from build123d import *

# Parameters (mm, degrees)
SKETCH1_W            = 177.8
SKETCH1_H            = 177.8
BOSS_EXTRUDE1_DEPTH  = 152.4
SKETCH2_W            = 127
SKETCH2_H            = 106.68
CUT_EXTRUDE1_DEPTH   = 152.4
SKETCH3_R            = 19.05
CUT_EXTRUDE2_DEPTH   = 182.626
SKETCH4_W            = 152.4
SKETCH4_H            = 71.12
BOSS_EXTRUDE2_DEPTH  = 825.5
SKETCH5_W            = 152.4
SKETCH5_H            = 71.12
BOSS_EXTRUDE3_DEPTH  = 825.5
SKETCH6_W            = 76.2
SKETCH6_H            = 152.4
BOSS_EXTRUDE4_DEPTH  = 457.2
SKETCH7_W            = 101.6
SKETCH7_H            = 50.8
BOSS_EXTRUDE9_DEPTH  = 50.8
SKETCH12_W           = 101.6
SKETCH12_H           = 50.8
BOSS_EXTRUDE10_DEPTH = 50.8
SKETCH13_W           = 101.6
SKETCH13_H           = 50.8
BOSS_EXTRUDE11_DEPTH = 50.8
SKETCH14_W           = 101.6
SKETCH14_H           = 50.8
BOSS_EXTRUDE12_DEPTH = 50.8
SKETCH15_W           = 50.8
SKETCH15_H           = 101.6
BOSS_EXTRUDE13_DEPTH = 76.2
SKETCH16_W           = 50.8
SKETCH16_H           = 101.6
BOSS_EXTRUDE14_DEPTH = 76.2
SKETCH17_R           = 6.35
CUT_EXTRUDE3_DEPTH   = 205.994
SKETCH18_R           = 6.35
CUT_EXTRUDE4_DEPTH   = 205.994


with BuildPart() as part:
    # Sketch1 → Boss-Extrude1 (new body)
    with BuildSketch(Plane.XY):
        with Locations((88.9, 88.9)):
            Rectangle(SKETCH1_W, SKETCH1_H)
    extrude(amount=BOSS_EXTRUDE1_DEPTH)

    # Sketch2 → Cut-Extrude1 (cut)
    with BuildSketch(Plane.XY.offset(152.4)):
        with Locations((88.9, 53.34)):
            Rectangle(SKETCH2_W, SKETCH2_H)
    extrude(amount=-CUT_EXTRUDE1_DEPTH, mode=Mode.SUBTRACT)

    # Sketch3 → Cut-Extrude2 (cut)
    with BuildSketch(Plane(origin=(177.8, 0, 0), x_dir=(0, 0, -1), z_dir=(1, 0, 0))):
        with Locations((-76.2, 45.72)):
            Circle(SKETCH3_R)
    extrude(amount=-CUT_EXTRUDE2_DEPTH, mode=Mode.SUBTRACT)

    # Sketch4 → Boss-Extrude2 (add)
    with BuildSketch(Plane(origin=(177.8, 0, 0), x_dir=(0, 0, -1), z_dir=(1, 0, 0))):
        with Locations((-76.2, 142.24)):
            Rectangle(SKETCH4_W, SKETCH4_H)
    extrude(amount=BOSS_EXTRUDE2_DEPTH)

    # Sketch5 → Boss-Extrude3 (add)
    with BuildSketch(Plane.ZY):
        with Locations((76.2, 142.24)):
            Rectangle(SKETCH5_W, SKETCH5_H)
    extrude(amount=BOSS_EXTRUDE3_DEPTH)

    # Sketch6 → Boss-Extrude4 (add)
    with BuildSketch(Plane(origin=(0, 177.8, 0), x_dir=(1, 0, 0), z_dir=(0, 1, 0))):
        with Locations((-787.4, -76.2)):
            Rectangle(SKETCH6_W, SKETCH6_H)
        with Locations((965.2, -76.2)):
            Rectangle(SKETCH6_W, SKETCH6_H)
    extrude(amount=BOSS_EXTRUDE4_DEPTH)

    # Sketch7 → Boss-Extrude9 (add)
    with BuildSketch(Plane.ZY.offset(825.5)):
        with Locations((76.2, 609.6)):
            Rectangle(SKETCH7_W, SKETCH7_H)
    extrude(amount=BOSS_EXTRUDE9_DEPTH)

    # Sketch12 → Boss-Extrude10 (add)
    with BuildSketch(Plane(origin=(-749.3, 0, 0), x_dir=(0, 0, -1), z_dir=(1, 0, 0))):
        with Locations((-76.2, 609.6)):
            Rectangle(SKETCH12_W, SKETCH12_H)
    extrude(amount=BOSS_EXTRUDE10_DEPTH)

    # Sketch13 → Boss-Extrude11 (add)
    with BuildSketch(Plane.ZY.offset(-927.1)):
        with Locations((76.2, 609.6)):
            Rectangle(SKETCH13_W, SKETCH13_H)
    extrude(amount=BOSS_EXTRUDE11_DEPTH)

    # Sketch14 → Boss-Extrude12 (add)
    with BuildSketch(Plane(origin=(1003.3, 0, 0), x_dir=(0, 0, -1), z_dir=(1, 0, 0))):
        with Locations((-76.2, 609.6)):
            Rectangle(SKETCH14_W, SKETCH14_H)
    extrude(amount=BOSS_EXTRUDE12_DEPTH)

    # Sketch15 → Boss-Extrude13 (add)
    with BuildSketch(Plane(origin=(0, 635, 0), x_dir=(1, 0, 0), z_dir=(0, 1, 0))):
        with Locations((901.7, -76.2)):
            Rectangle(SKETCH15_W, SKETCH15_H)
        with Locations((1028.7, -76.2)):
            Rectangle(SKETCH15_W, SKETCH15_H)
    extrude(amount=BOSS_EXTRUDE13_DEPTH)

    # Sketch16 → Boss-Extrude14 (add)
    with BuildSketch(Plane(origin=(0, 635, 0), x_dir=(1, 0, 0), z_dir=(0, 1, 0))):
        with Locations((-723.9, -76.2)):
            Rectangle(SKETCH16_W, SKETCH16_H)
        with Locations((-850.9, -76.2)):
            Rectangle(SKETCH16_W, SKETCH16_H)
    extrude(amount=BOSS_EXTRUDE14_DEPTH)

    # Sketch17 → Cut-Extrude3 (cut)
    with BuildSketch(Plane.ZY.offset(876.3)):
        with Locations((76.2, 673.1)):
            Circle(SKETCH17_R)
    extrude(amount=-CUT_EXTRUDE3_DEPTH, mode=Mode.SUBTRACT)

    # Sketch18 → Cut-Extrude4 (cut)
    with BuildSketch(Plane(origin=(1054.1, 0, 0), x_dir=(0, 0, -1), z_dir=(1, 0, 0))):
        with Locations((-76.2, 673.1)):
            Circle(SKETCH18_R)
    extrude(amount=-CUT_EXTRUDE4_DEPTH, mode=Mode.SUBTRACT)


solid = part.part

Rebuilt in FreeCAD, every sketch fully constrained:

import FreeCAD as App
import Part
import Sketcher

V = App.Vector
Q = App.Units.Quantity

doc = App.newDocument("Part")
body = doc.addObject("PartDesign::Body", "Body")

# Sketch on XY plane
sketch1 = body.newObject("Sketcher::SketchObject", "Sketch")
sketch1.AttachmentSupport = (doc.getObject("XY_Plane"), [""])
sketch1.MapMode = "FlatFace"
sketch1.addGeometry([
    Part.LineSegment(V(0, 178, 0), V(0, 0, 0)),
    Part.LineSegment(V(0, 0, 0), V(178, 0, 0)),
    Part.LineSegment(V(178, 0, 0), V(178, 178, 0)),
    Part.LineSegment(V(178, 178, 0), V(0, 178, 0)),
], False)
sketch1.addConstraint([
    Sketcher.Constraint("Coincident", 0, 2, 1, 1),
    Sketcher.Constraint("Coincident", 1, 2, 2, 1),
    Sketcher.Constraint("Coincident", 2, 2, 3, 1),
    Sketcher.Constraint("Coincident", 3, 2, 0, 1),
    Sketcher.Constraint("Vertical", 0),
    Sketcher.Constraint("Horizontal", 1),
    Sketcher.Constraint("Vertical", 2),
    Sketcher.Constraint("Horizontal", 3),
    Sketcher.Constraint("Coincident", 0, 2, -1, 1),
    Sketcher.Constraint("Equal", 3, 0),
    Sketcher.Constraint("DistanceX", 1, 1, 1, 2, Q("7 in")),
])
pad1 = body.newObject("PartDesign::Pad", "Pad")
pad1.Profile = sketch1
pad1.Length = Q("6 in")

# Sketch on XY plane
sketch2 = body.newObject("Sketcher::SketchObject", "Sketch001")
sketch2.AttachmentSupport = (doc.getObject("XY_Plane"), [""])
sketch2.MapMode = "FlatFace"
sketch2.AttachmentOffset = App.Placement(V(0, 0, 6 * 25.4), App.Rotation())
sketch2.addGeometry([
    Part.LineSegment(V(25, 107, 0), V(25, 0, 0)),
    Part.LineSegment(V(25, 0, 0), V(152, 0, 0)),
    Part.LineSegment(V(152, 0, 0), V(152, 107, 0)),
    Part.LineSegment(V(152, 107, 0), V(25, 107, 0)),
], False)
sketch2.addConstraint([
    Sketcher.Constraint("Coincident", 0, 2, 1, 1),
    Sketcher.Constraint("Coincident", 1, 2, 2, 1),
    Sketcher.Constraint("Coincident", 2, 2, 3, 1),
    Sketcher.Constraint("Coincident", 3, 2, 0, 1),
    Sketcher.Constraint("Vertical", 0),
    Sketcher.Constraint("Horizontal", 1),
    Sketcher.Constraint("Vertical", 2),
    Sketcher.Constraint("Horizontal", 3),
    Sketcher.Constraint("PointOnObject", 0, 2, -1),
    Sketcher.Constraint("DistanceX", 1, 1, 1, 2, Q("5 in")),
    Sketcher.Constraint("DistanceY", 0, 2, 0, 1, Q("4.2 in")),
    Sketcher.Constraint("DistanceX", -1, 1, 0, 2, Q("1 in")),
])
pocket1 = body.newObject("PartDesign::Pocket", "Pocket")
pocket1.Profile = sketch2
pocket1.Length = Q("6 in")

# Sketch on YZ plane
sketch3 = body.newObject("Sketcher::SketchObject", "Sketch002")
sketch3.AttachmentSupport = (doc.getObject("YZ_Plane"), [""])
sketch3.MapMode = "FlatFace"
sketch3.AttachmentOffset = App.Placement(V(0, 0, 7 * 25.4), App.Rotation())
sketch3.addGeometry(Part.Circle(V(46, 76, 0), V(0, 0, 1), 19), False)
sketch3.addConstraint([
    Sketcher.Constraint("Diameter", 0, Q("1.5 in")),
    Sketcher.Constraint("DistanceY", -1, 1, 0, 3, Q("3 in")),
    Sketcher.Constraint("DistanceX", -1, 1, 0, 3, Q("1.8 in")),
])
pocket2 = body.newObject("PartDesign::Pocket", "Pocket001")
pocket2.Profile = sketch3
pocket2.Length = Q("7.19 in")

# Sketch on YZ plane
sketch4 = body.newObject("Sketcher::SketchObject", "Sketch003")
sketch4.AttachmentSupport = (doc.getObject("YZ_Plane"), [""])
sketch4.MapMode = "FlatFace"
sketch4.AttachmentOffset = App.Placement(V(0, 0, 7 * 25.4), App.Rotation())
sketch4.addGeometry([
    Part.LineSegment(V(178, 152, 0), V(107, 152, 0)),
    Part.LineSegment(V(107, 152, 0), V(107, 0, 0)),
    Part.LineSegment(V(107, 0, 0), V(178, 0, 0)),
    Part.LineSegment(V(178, 0, 0), V(178, 152, 0)),
], False)
sketch4.addConstraint([
    Sketcher.Constraint("Coincident", 0, 2, 1, 1),
    Sketcher.Constraint("Coincident", 1, 2, 2, 1),
    Sketcher.Constraint("Coincident", 2, 2, 3, 1),
    Sketcher.Constraint("Coincident", 3, 2, 0, 1),
    Sketcher.Constraint("Horizontal", 0),
    Sketcher.Constraint("Vertical", 1),
    Sketcher.Constraint("Horizontal", 2),
    Sketcher.Constraint("Vertical", 3),
    Sketcher.Constraint("PointOnObject", 1, 2, -1),
    Sketcher.Constraint("DistanceY", 1, 2, 1, 1, Q("6 in")),
    Sketcher.Constraint("DistanceX", 0, 2, 0, 1, Q("2.8 in")),
    Sketcher.Constraint("DistanceX", -1, 1, 2, 2, Q("7 in")),
])
pad2 = body.newObject("PartDesign::Pad", "Pad001")
pad2.Profile = sketch4
pad2.Length = Q("32.5 in")

# Sketch on YZ plane
sketch5 = body.newObject("Sketcher::SketchObject", "Sketch004")
sketch5.AttachmentSupport = (doc.getObject("YZ_Plane"), [""])
sketch5.MapMode = "FlatFace"
sketch5.addGeometry([
    Part.LineSegment(V(178, 0, 0), V(107, 0, 0)),
    Part.LineSegment(V(107, 0, 0), V(107, 152, 0)),
    Part.LineSegment(V(107, 152, 0), V(178, 152, 0)),
    Part.LineSegment(V(178, 152, 0), V(178, 0, 0)),
], False)
sketch5.addConstraint([
    Sketcher.Constraint("Coincident", 0, 2, 1, 1),
    Sketcher.Constraint("Coincident", 1, 2, 2, 1),
    Sketcher.Constraint("Coincident", 2, 2, 3, 1),
    Sketcher.Constraint("Coincident", 3, 2, 0, 1),
    Sketcher.Constraint("Horizontal", 0),
    Sketcher.Constraint("Vertical", 1),
    Sketcher.Constraint("Horizontal", 2),
    Sketcher.Constraint("Vertical", 3),
    Sketcher.Constraint("PointOnObject", 0, 2, -1),
    Sketcher.Constraint("DistanceY", 1, 1, 1, 2, Q("6 in")),
    Sketcher.Constraint("DistanceX", 0, 2, 0, 1, Q("2.8 in")),
    Sketcher.Constraint("DistanceX", -1, 1, 2, 2, Q("7 in")),
])
pad3 = body.newObject("PartDesign::Pad", "Pad002")
pad3.Profile = sketch5
pad3.Length = Q("32.5 in")
pad3.Reversed = True

# Sketch on XZ plane
sketch6 = body.newObject("Sketcher::SketchObject", "Sketch005")
sketch6.AttachmentSupport = (doc.getObject("XZ_Plane"), [""])
sketch6.MapMode = "FlatFace"
sketch6.AttachmentOffset = App.Placement(V(0, 0, -7 * 25.4), App.Rotation())
sketch6.addGeometry([
    Part.LineSegment(V(-826, 0, 0), V(-826, 152, 0)),  # 0
    Part.LineSegment(V(-826, 152, 0), V(-749, 152, 0)),  # 1
    Part.LineSegment(V(-749, 152, 0), V(-749, 0, 0)),  # 2
    Part.LineSegment(V(-749, 0, 0), V(-826, 0, 0)),  # 3
    Part.LineSegment(V(927, 0, 0), V(927, 152, 0)),  # 4
    Part.LineSegment(V(927, 152, 0), V(1003, 152, 0)),  # 5
    Part.LineSegment(V(1003, 152, 0), V(1003, 0, 0)),  # 6
    Part.LineSegment(V(1003, 0, 0), V(927, 0, 0)),  # 7
], False)
sketch6.addConstraint([
    Sketcher.Constraint("Coincident", 0, 2, 1, 1),
    Sketcher.Constraint("Coincident", 1, 2, 2, 1),
    Sketcher.Constraint("Coincident", 2, 2, 3, 1),
    Sketcher.Constraint("Coincident", 3, 2, 0, 1),
    Sketcher.Constraint("Coincident", 4, 2, 5, 1),
    Sketcher.Constraint("Coincident", 5, 2, 6, 1),
    Sketcher.Constraint("Coincident", 6, 2, 7, 1),
    Sketcher.Constraint("Coincident", 7, 2, 4, 1),
    Sketcher.Constraint("Vertical", 0),
    Sketcher.Constraint("Horizontal", 1),
    Sketcher.Constraint("Vertical", 2),
    Sketcher.Constraint("Horizontal", 3),
    Sketcher.Constraint("Vertical", 4),
    Sketcher.Constraint("Horizontal", 5),
    Sketcher.Constraint("Vertical", 6),
    Sketcher.Constraint("Horizontal", 7),
    Sketcher.Constraint("PointOnObject", 2, 2, -1),
    Sketcher.Constraint("PointOnObject", 6, 2, -1),
    Sketcher.Constraint("Horizontal", 1, 2, 4, 2),
    Sketcher.Constraint("Equal", 3, 5),
    Sketcher.Constraint("DistanceX", 1, 1, 1, 2, Q("3 in")),
    Sketcher.Constraint("DistanceY", 0, 1, 0, 2, Q("6 in")),
    Sketcher.Constraint("DistanceX", 1, 2, 4, 2, Q("66 in")),
    Sketcher.Constraint("DistanceX", 0, 2, -1, 1, Q("32.5 in")),
])
pad4 = body.newObject("PartDesign::Pad", "Pad003")
pad4.Profile = sketch6
pad4.Length = Q("18 in")
pad4.Reversed = True

# Sketch on YZ plane
sketch7 = body.newObject("Sketcher::SketchObject", "Sketch006")
sketch7.AttachmentSupport = (doc.getObject("YZ_Plane"), [""])
sketch7.MapMode = "FlatFace"
sketch7.AttachmentOffset = App.Placement(V(0, 0, -32.5 * 25.4), App.Rotation())
sketch7.addGeometry([
    Part.LineSegment(V(635, 25, 0), V(584, 25, 0)),
    Part.LineSegment(V(584, 25, 0), V(584, 127, 0)),
    Part.LineSegment(V(584, 127, 0), V(635, 127, 0)),
    Part.LineSegment(V(635, 127, 0), V(635, 25, 0)),
], False)
sketch7.addConstraint([
    Sketcher.Constraint("Coincident", 0, 2, 1, 1),
    Sketcher.Constraint("Coincident", 1, 2, 2, 1),
    Sketcher.Constraint("Coincident", 2, 2, 3, 1),
    Sketcher.Constraint("Coincident", 3, 2, 0, 1),
    Sketcher.Constraint("Horizontal", 0),
    Sketcher.Constraint("Vertical", 1),
    Sketcher.Constraint("Horizontal", 2),
    Sketcher.Constraint("Vertical", 3),
    Sketcher.Constraint("DistanceX", 0, 2, 0, 1, Q("2 in")),
    Sketcher.Constraint("DistanceY", 1, 1, 1, 2, Q("4 in")),
    Sketcher.Constraint("DistanceX", -1, 1, 0, 2, Q("23 in")),
    Sketcher.Constraint("DistanceY", -1, 1, 0, 2, Q("1 in")),
])
pad5 = body.newObject("PartDesign::Pad", "Pad004")
pad5.Profile = sketch7
pad5.Length = Q("2 in")
pad5.Reversed = True

# Sketch on YZ plane
sketch8 = body.newObject("Sketcher::SketchObject", "Sketch007")
sketch8.AttachmentSupport = (doc.getObject("YZ_Plane"), [""])
sketch8.MapMode = "FlatFace"
sketch8.AttachmentOffset = App.Placement(V(0, 0, -29.5 * 25.4), App.Rotation())
sketch8.addGeometry([
    Part.LineSegment(V(635, 127, 0), V(584, 127, 0)),
    Part.LineSegment(V(584, 127, 0), V(584, 25, 0)),
    Part.LineSegment(V(584, 25, 0), V(635, 25, 0)),
    Part.LineSegment(V(635, 25, 0), V(635, 127, 0)),
], False)
sketch8.addConstraint([
    Sketcher.Constraint("Coincident", 0, 2, 1, 1),
    Sketcher.Constraint("Coincident", 1, 2, 2, 1),
    Sketcher.Constraint("Coincident", 2, 2, 3, 1),
    Sketcher.Constraint("Coincident", 3, 2, 0, 1),
    Sketcher.Constraint("Horizontal", 0),
    Sketcher.Constraint("Vertical", 1),
    Sketcher.Constraint("Horizontal", 2),
    Sketcher.Constraint("Vertical", 3),
    Sketcher.Constraint("DistanceX", 0, 2, 0, 1, Q("2 in")),
    Sketcher.Constraint("DistanceY", 1, 2, 1, 1, Q("4 in")),
    Sketcher.Constraint("DistanceX", -1, 1, 0, 2, Q("23 in")),
    Sketcher.Constraint("DistanceY", -1, 1, 0, 2, Q("5 in")),
])
pad6 = body.newObject("PartDesign::Pad", "Pad005")
pad6.Profile = sketch8
pad6.Length = Q("2 in")

# Sketch on YZ plane
sketch9 = body.newObject("Sketcher::SketchObject", "Sketch008")
sketch9.AttachmentSupport = (doc.getObject("YZ_Plane"), [""])
sketch9.MapMode = "FlatFace"
sketch9.AttachmentOffset = App.Placement(V(0, 0, 36.5 * 25.4), App.Rotation())
sketch9.addGeometry([
    Part.LineSegment(V(635, 25, 0), V(584, 25, 0)),
    Part.LineSegment(V(584, 25, 0), V(584, 127, 0)),
    Part.LineSegment(V(584, 127, 0), V(635, 127, 0)),
    Part.LineSegment(V(635, 127, 0), V(635, 25, 0)),
], False)
sketch9.addConstraint([
    Sketcher.Constraint("Coincident", 0, 2, 1, 1),
    Sketcher.Constraint("Coincident", 1, 2, 2, 1),
    Sketcher.Constraint("Coincident", 2, 2, 3, 1),
    Sketcher.Constraint("Coincident", 3, 2, 0, 1),
    Sketcher.Constraint("Horizontal", 0),
    Sketcher.Constraint("Vertical", 1),
    Sketcher.Constraint("Horizontal", 2),
    Sketcher.Constraint("Vertical", 3),
    Sketcher.Constraint("DistanceX", 0, 2, 0, 1, Q("2 in")),
    Sketcher.Constraint("DistanceY", 1, 1, 1, 2, Q("4 in")),
    Sketcher.Constraint("DistanceX", -1, 1, 0, 2, Q("23 in")),
    Sketcher.Constraint("DistanceY", -1, 1, 0, 2, Q("1 in")),
])
pad7 = body.newObject("PartDesign::Pad", "Pad006")
pad7.Profile = sketch9
pad7.Length = Q("2 in")
pad7.Reversed = True

# Sketch on YZ plane
sketch10 = body.newObject("Sketcher::SketchObject", "Sketch009")
sketch10.AttachmentSupport = (doc.getObject("YZ_Plane"), [""])
sketch10.MapMode = "FlatFace"
sketch10.AttachmentOffset = App.Placement(V(0, 0, 39.5 * 25.4), App.Rotation())
sketch10.addGeometry([
    Part.LineSegment(V(635, 127, 0), V(584, 127, 0)),
    Part.LineSegment(V(584, 127, 0), V(584, 25, 0)),
    Part.LineSegment(V(584, 25, 0), V(635, 25, 0)),
    Part.LineSegment(V(635, 25, 0), V(635, 127, 0)),
], False)
sketch10.addConstraint([
    Sketcher.Constraint("Coincident", 0, 2, 1, 1),
    Sketcher.Constraint("Coincident", 1, 2, 2, 1),
    Sketcher.Constraint("Coincident", 2, 2, 3, 1),
    Sketcher.Constraint("Coincident", 3, 2, 0, 1),
    Sketcher.Constraint("Horizontal", 0),
    Sketcher.Constraint("Vertical", 1),
    Sketcher.Constraint("Horizontal", 2),
    Sketcher.Constraint("Vertical", 3),
    Sketcher.Constraint("DistanceX", 0, 2, 0, 1, Q("2 in")),
    Sketcher.Constraint("DistanceY", 1, 2, 1, 1, Q("4 in")),
    Sketcher.Constraint("DistanceX", -1, 1, 0, 2, Q("23 in")),
    Sketcher.Constraint("DistanceY", -1, 1, 0, 2, Q("5 in")),
])
pad8 = body.newObject("PartDesign::Pad", "Pad007")
pad8.Profile = sketch10
pad8.Length = Q("2 in")

# Sketch on XZ plane
sketch11 = body.newObject("Sketcher::SketchObject", "Sketch010")
sketch11.AttachmentSupport = (doc.getObject("XZ_Plane"), [""])
sketch11.MapMode = "FlatFace"
sketch11.AttachmentOffset = App.Placement(V(0, 0, -25 * 25.4), App.Rotation())
sketch11.addGeometry([
    Part.LineSegment(V(876, 25, 0), V(876, 127, 0)),  # 0
    Part.LineSegment(V(876, 127, 0), V(927, 127, 0)),  # 1
    Part.LineSegment(V(927, 127, 0), V(927, 25, 0)),  # 2
    Part.LineSegment(V(927, 25, 0), V(876, 25, 0)),  # 3
    Part.LineSegment(V(1003, 25, 0), V(1003, 127, 0)),  # 4
    Part.LineSegment(V(1003, 127, 0), V(1054, 127, 0)),  # 5
    Part.LineSegment(V(1054, 127, 0), V(1054, 25, 0)),  # 6
    Part.LineSegment(V(1054, 25, 0), V(1003, 25, 0)),  # 7
], False)
sketch11.addConstraint([
    Sketcher.Constraint("Coincident", 0, 2, 1, 1),
    Sketcher.Constraint("Coincident", 1, 2, 2, 1),
    Sketcher.Constraint("Coincident", 2, 2, 3, 1),
    Sketcher.Constraint("Coincident", 3, 2, 0, 1),
    Sketcher.Constraint("Coincident", 4, 2, 5, 1),
    Sketcher.Constraint("Coincident", 5, 2, 6, 1),
    Sketcher.Constraint("Coincident", 6, 2, 7, 1),
    Sketcher.Constraint("Coincident", 7, 2, 4, 1),
    Sketcher.Constraint("Vertical", 0),
    Sketcher.Constraint("Horizontal", 1),
    Sketcher.Constraint("Vertical", 2),
    Sketcher.Constraint("Horizontal", 3),
    Sketcher.Constraint("Vertical", 4),
    Sketcher.Constraint("Horizontal", 5),
    Sketcher.Constraint("Vertical", 6),
    Sketcher.Constraint("Horizontal", 7),
    Sketcher.Constraint("Horizontal", 1, 2, 4, 2),
    Sketcher.Constraint("Horizontal", 3, 2, 6, 2),
    Sketcher.Constraint("Equal", 3, 5),
    Sketcher.Constraint("DistanceX", 1, 1, 1, 2, Q("2 in")),
    Sketcher.Constraint("DistanceY", 0, 1, 0, 2, Q("4 in")),
    Sketcher.Constraint("DistanceY", -1, 1, 0, 2, Q("5 in")),
    Sketcher.Constraint("DistanceX", 1, 2, 4, 2, Q("3 in")),
    Sketcher.Constraint("DistanceX", -1, 1, 0, 2, Q("34.5 in")),
])
pad9 = body.newObject("PartDesign::Pad", "Pad008")
pad9.Profile = sketch11
pad9.Length = Q("3 in")
pad9.Reversed = True

# Sketch on XZ plane
sketch12 = body.newObject("Sketcher::SketchObject", "Sketch011")
sketch12.AttachmentSupport = (doc.getObject("XZ_Plane"), [""])
sketch12.MapMode = "FlatFace"
sketch12.AttachmentOffset = App.Placement(V(0, 0, -25 * 25.4), App.Rotation())
sketch12.addGeometry([
    Part.LineSegment(V(-749, 25, 0), V(-749, 127, 0)),  # 0
    Part.LineSegment(V(-749, 127, 0), V(-698, 127, 0)),  # 1
    Part.LineSegment(V(-698, 127, 0), V(-698, 25, 0)),  # 2
    Part.LineSegment(V(-698, 25, 0), V(-749, 25, 0)),  # 3
    Part.LineSegment(V(-876, 25, 0), V(-876, 127, 0)),  # 4
    Part.LineSegment(V(-876, 127, 0), V(-826, 127, 0)),  # 5
    Part.LineSegment(V(-826, 127, 0), V(-826, 25, 0)),  # 6
    Part.LineSegment(V(-826, 25, 0), V(-876, 25, 0)),  # 7
], False)
sketch12.addConstraint([
    Sketcher.Constraint("Coincident", 0, 2, 1, 1),
    Sketcher.Constraint("Coincident", 1, 2, 2, 1),
    Sketcher.Constraint("Coincident", 2, 2, 3, 1),
    Sketcher.Constraint("Coincident", 3, 2, 0, 1),
    Sketcher.Constraint("Coincident", 4, 2, 5, 1),
    Sketcher.Constraint("Coincident", 5, 2, 6, 1),
    Sketcher.Constraint("Coincident", 6, 2, 7, 1),
    Sketcher.Constraint("Coincident", 7, 2, 4, 1),
    Sketcher.Constraint("Vertical", 0),
    Sketcher.Constraint("Horizontal", 1),
    Sketcher.Constraint("Vertical", 2),
    Sketcher.Constraint("Horizontal", 3),
    Sketcher.Constraint("Vertical", 4),
    Sketcher.Constraint("Horizontal", 5),
    Sketcher.Constraint("Vertical", 6),
    Sketcher.Constraint("Horizontal", 7),
    Sketcher.Constraint("Horizontal", 1, 2, 4, 2),
    Sketcher.Constraint("Horizontal", 3, 2, 6, 2),
    Sketcher.Constraint("Equal", 3, 5),
    Sketcher.Constraint("DistanceX", 1, 1, 1, 2, Q("2 in")),
    Sketcher.Constraint("DistanceY", 0, 1, 0, 2, Q("4 in")),
    Sketcher.Constraint("DistanceY", -1, 1, 0, 2, Q("5 in")),
    Sketcher.Constraint("DistanceX", 4, 2, 0, 2, Q("5 in")),
    Sketcher.Constraint("DistanceX", 0, 2, -1, 1, Q("29.5 in")),
])
pad10 = body.newObject("PartDesign::Pad", "Pad009")
pad10.Profile = sketch12
pad10.Length = Q("3 in")
pad10.Reversed = True

# Sketch on YZ plane
sketch13 = body.newObject("Sketcher::SketchObject", "Sketch012")
sketch13.AttachmentSupport = (doc.getObject("YZ_Plane"), [""])
sketch13.MapMode = "FlatFace"
sketch13.AttachmentOffset = App.Placement(V(0, 0, -34.5 * 25.4), App.Rotation())
sketch13.addGeometry(Part.Circle(V(673, 76, 0), V(0, 0, 1), 6), False)
sketch13.addConstraint([
    Sketcher.Constraint("Diameter", 0, Q("0.5 in")),
    Sketcher.Constraint("DistanceY", -1, 1, 0, 3, Q("3 in")),
    Sketcher.Constraint("DistanceX", -1, 1, 0, 3, Q("26.5 in")),
])
pocket3 = body.newObject("PartDesign::Pocket", "Pocket002")
pocket3.Profile = sketch13
pocket3.Length = Q("8.11 in")
pocket3.Reversed = True

# Sketch on YZ plane
sketch14 = body.newObject("Sketcher::SketchObject", "Sketch013")
sketch14.AttachmentSupport = (doc.getObject("YZ_Plane"), [""])
sketch14.MapMode = "FlatFace"
sketch14.AttachmentOffset = App.Placement(V(0, 0, 41.5 * 25.4), App.Rotation())
sketch14.addGeometry(Part.Circle(V(673, 76, 0), V(0, 0, 1), 6), False)
sketch14.addConstraint([
    Sketcher.Constraint("Diameter", 0, Q("0.5 in")),
    Sketcher.Constraint("DistanceY", -1, 1, 0, 3, Q("3 in")),
    Sketcher.Constraint("DistanceX", -1, 1, 0, 3, Q("26.5 in")),
])
pocket4 = body.newObject("PartDesign::Pocket", "Pocket003")
pocket4.Profile = sketch14
pocket4.Length = Q("8.11 in")

doc.recompute()
